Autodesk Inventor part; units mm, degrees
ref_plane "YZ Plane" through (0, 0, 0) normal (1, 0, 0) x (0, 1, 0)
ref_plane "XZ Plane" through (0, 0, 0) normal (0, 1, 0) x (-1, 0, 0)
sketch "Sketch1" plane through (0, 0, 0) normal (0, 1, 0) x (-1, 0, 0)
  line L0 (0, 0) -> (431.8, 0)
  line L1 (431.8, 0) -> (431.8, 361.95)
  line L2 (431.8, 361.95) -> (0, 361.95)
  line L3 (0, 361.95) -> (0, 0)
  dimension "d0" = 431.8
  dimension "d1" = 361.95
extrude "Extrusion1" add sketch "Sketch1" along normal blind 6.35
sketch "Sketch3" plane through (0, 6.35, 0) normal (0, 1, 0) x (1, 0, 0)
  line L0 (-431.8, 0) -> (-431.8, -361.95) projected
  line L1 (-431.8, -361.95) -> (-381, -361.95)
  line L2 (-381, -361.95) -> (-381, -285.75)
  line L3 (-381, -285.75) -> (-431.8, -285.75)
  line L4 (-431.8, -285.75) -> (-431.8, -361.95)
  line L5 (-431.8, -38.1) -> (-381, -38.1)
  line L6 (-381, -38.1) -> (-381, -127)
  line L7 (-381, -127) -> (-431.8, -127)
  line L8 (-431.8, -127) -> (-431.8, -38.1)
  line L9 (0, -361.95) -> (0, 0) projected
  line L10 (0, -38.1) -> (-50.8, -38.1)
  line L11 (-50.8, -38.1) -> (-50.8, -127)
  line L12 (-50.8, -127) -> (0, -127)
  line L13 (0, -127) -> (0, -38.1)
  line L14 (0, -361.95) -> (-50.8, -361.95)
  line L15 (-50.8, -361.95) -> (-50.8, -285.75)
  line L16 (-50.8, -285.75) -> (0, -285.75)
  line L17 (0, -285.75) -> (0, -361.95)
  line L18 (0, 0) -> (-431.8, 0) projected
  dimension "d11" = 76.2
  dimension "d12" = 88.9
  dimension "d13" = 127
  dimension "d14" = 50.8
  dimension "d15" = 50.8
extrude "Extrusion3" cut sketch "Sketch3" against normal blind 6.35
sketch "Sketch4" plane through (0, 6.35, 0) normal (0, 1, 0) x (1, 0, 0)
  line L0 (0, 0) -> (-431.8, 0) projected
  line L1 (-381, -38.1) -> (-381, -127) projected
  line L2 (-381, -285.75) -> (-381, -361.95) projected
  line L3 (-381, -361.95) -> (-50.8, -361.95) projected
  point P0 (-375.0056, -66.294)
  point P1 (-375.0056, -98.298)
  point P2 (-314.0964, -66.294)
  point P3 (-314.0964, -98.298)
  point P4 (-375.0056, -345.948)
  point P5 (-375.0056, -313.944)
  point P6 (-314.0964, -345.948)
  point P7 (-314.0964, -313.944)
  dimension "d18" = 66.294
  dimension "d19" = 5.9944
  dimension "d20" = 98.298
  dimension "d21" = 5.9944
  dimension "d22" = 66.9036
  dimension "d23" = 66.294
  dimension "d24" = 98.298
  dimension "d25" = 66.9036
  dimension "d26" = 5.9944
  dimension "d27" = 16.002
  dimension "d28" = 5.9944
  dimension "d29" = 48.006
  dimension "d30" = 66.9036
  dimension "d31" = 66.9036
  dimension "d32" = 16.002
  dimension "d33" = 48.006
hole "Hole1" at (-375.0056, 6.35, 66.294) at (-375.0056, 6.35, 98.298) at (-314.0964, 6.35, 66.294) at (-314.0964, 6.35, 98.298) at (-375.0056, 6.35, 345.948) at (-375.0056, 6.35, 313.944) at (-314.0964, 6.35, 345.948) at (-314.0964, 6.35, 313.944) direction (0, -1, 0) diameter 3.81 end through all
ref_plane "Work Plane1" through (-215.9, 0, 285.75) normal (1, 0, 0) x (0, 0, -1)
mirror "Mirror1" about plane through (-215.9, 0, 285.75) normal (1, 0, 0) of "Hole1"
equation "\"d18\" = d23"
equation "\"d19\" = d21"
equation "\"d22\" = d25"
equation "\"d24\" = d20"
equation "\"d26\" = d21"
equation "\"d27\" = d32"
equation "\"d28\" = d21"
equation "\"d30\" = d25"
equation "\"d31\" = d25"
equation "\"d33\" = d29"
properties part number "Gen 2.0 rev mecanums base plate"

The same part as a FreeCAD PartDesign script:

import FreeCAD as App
import Part
import Sketcher

V = App.Vector
Q = App.Units.Quantity

doc = App.newDocument("Part")
body = doc.addObject("PartDesign::Body", "Body")

sketch1 = doc.addObject("Sketcher::SketchObject", "Sketch")
body.addObject(sketch1)
sketch1.AttachmentSupport = (doc.XZ_Plane, [""])
sketch1.MapMode = "FlatFace"
sketch1.addGeometry([
    Part.LineSegment(V(0, 361.95, 0), V(0, 0, 0)),
    Part.LineSegment(V(0, 0, 0), V(-431.8, 0, 0)),
    Part.LineSegment(V(-431.8, 0, 0), V(-431.8, 361.95, 0)),
    Part.LineSegment(V(-431.8, 361.95, 0), V(0, 361.95, 0)),
], False)
sketch1.addConstraint([
    Sketcher.Constraint("Coincident", 0, 2, 1, 1),
    Sketcher.Constraint("Coincident", 1, 2, 2, 1),
    Sketcher.Constraint("Coincident", 2, 2, 3, 1),
    Sketcher.Constraint("Coincident", 3, 2, 0, 1),
    Sketcher.Constraint("Vertical", 0),
    Sketcher.Constraint("Horizontal", 1),
    Sketcher.Constraint("Vertical", 2),
    Sketcher.Constraint("Horizontal", 3),
    Sketcher.Constraint("Coincident", 0, 2, -1, 1),
    Sketcher.Constraint("DistanceX", 1, 2, 1, 1, Q("17 in")),
    Sketcher.Constraint("DistanceY", 0, 2, 0, 1, Q("14.25 in")),
])
pad1 = doc.addObject("PartDesign::Pad", "Pad")
body.addObject(pad1)
pad1.Profile = sketch1
pad1.Length = Q("0.25 in")
pad1.Reversed = True

sketch2 = doc.addObject("Sketcher::SketchObject", "Sketch001")
body.addObject(sketch2)
sketch2.AttachmentSupport = (doc.XZ_Plane, [""])
sketch2.MapMode = "FlatFace"
sketch2.AttachmentOffset = App.Placement(V(0, 0, -0.25 * 25.4), App.Rotation())
sketch2.addGeometry([
    Part.LineSegment(V(-381, 285.75, 0), V(-431.8, 285.75, 0)),
    Part.LineSegment(V(-431.8, 285.75, 0), V(-431.8, 361.95, 0)),
    Part.LineSegment(V(-431.8, 361.95, 0), V(-381, 361.95, 0)),
    Part.LineSegment(V(-381, 361.95, 0), V(-381, 285.75, 0)),
    Part.LineSegment(V(-381, 38.1, 0), V(-431.8, 38.1, 0)),
    Part.LineSegment(V(-431.8, 38.1, 0), V(-431.8, 127, 0)),
    Part.LineSegment(V(-431.8, 127, 0), V(-381, 127, 0)),
    Part.LineSegment(V(-381, 127, 0), V(-381, 38.1, 0)),
    Part.LineSegment(V(0, 361.95, 0), V(0, 285.75, 0)),
    Part.LineSegment(V(0, 285.75, 0), V(-50.8, 285.75, 0)),
    Part.LineSegment(V(-50.8, 285.75, 0), V(-50.8, 361.95, 0)),
    Part.LineSegment(V(-50.8, 361.95, 0), V(0, 361.95, 0)),
    Part.LineSegment(V(0, 127, 0), V(0, 38.1, 0)),
    Part.LineSegment(V(0, 38.1, 0), V(-50.8, 38.1, 0)),
    Part.LineSegment(V(-50.8, 38.1, 0), V(-50.8, 127, 0)),
    Part.LineSegment(V(-50.8, 127, 0), V(0, 127, 0)),
], False)
sketch2.addConstraint([
    Sketcher.Constraint("Coincident", 0, 2, 1, 1),
    Sketcher.Constraint("Coincident", 1, 2, 2, 1),
    Sketcher.Constraint("Coincident", 2, 2, 3, 1),
    Sketcher.Constraint("Coincident", 3, 2, 0, 1),
    Sketcher.Constraint("Coincident", 4, 2, 5, 1),
    Sketcher.Constraint("Coincident", 5, 2, 6, 1),
    Sketcher.Constraint("Coincident", 6, 2, 7, 1),
    Sketcher.Constraint("Coincident", 7, 2, 4, 1),
    Sketcher.Constraint("Coincident", 8, 2, 9, 1),
    Sketcher.Constraint("Coincident", 9, 2, 10, 1),
    Sketcher.Constraint("Coincident", 10, 2, 11, 1),
    Sketcher.Constraint("Coincident", 11, 2, 8, 1),
    Sketcher.Constraint("Coincident", 12, 2, 13, 1),
    Sketcher.Constraint("Coincident", 13, 2, 14, 1),
    Sketcher.Constraint("Coincident", 14, 2, 15, 1),
    Sketcher.Constraint("Coincident", 15, 2, 12, 1),
    Sketcher.Constraint("Horizontal", 0),
    Sketcher.Constraint("Vertical", 1),
    Sketcher.Constraint("Horizontal", 2),
    Sketcher.Constraint("Vertical", 3),
    Sketcher.Constraint("Horizontal", 4),
    Sketcher.Constraint("Vertical", 5),
    Sketcher.Constraint("Horizontal", 6),
    Sketcher.Constraint("Vertical", 7),
    Sketcher.Constraint("Vertical", 8),
    Sketcher.Constraint("Horizontal", 9),
    Sketcher.Constraint("Vertical", 10),
    Sketcher.Constraint("Horizontal", 11),
    Sketcher.Constraint("Vertical", 12),
    Sketcher.Constraint("Horizontal", 13),
    Sketcher.Constraint("Vertical", 14),
    Sketcher.Constraint("Horizontal", 15),
    Sketcher.Constraint("PointOnObject", 8, 2, -2),
    Sketcher.Constraint("PointOnObject", 12, 2, -2),
    Sketcher.Constraint("Horizontal", 3, 2, 8, 2),
    Sketcher.Constraint("Horizontal", 2, 2, 10, 2),
    Sketcher.Constraint("Horizontal", 7, 2, 12, 2),
    Sketcher.Constraint("Horizontal", 6, 2, 14, 2),
    Sketcher.Constraint("Vertical", 1, 2, 4, 2),
    Sketcher.Constraint("Vertical", 3, 2, 6, 2),
    Sketcher.Constraint("Vertical", 10, 2, 13, 2),
    Sketcher.Constraint("Equal", 6, 9),
    Sketcher.Constraint("DistanceX", 0, 2, 0, 1, Q("2 in")),
    Sketcher.Constraint("DistanceY", 1, 1, 1, 2, Q("3 in")),
    Sketcher.Constraint("DistanceY", 5, 1, 5, 2, Q("3.5 in")),
    Sketcher.Constraint("DistanceY", -1, 1, 5, 2, Q("5 in")),
    Sketcher.Constraint("DistanceX", 0, 2, -1, 1, Q("17 in")),
    Sketcher.Constraint("DistanceY", -1, 1, 0, 2, Q("11.25 in")),
])
pocket1 = doc.addObject("PartDesign::Pocket", "Pocket")
body.addObject(pocket1)
pocket1.Profile = sketch2
pocket1.Length = Q("0.25 in")
pocket1.Reversed = True

sketch3 = doc.addObject("Sketcher::SketchObject", "Sketch002")
body.addObject(sketch3)
sketch3.AttachmentSupport = (doc.XZ_Plane, [""])
sketch3.MapMode = "FlatFace"
sketch3.AttachmentOffset = App.Placement(V(0, 0, -0.25 * 25.4), App.Rotation())
sketch3.addGeometry([
    Part.Circle(V(-375.0056, 66.294, 0), V(0, 0, 1), 1.905),
    Part.Circle(V(-375.0056, 98.298, 0), V(0, 0, 1), 1.905),
    Part.Circle(V(-314.0964, 66.294, 0), V(0, 0, 1), 1.905),
    Part.Circle(V(-314.0964, 98.298, 0), V(0, 0, 1), 1.905),
    Part.Circle(V(-375.0056, 345.948, 0), V(0, 0, 1), 1.905),
    Part.Circle(V(-375.0056, 313.944, 0), V(0, 0, 1), 1.905),
    Part.Circle(V(-314.0964, 345.948, 0), V(0, 0, 1), 1.905),
    Part.Circle(V(-314.0964, 313.944, 0), V(0, 0, 1), 1.905),
], False)
sketch3.addConstraint([
    Sketcher.Constraint("Equal", 0, 1),
    Sketcher.Constraint("Equal", 1, 2),
    Sketcher.Constraint("Equal", 2, 3),
    Sketcher.Constraint("Equal", 3, 4),
    Sketcher.Constraint("Equal", 4, 5),
    Sketcher.Constraint("Equal", 5, 6),
    Sketcher.Constraint("Equal", 6, 7),
    Sketcher.Constraint("Horizontal", 0, 3, 2, 3),
    Sketcher.Constraint("Horizontal", 1, 3, 3, 3),
    Sketcher.Constraint("Horizontal", 4, 3, 6, 3),
    Sketcher.Constraint("Horizontal", 5, 3, 7, 3),
    Sketcher.Constraint("Vertical", 0, 3, 1, 3),
    Sketcher.Constraint("Vertical", 2, 3, 3, 3),
    Sketcher.Constraint("Vertical", 1, 3, 4, 3),
    Sketcher.Constraint("Vertical", 4, 3, 5, 3),
    Sketcher.Constraint("Vertical", 3, 3, 6, 3),
    Sketcher.Constraint("Vertical", 6, 3, 7, 3),
    Sketcher.Constraint("Diameter", 0, Q("0.15 in")),
    Sketcher.Constraint("DistanceY", -1, 1, 0, 3, Q("2.61 in")),
    Sketcher.Constraint("DistanceY", -1, 1, 1, 3, Q("3.87 in")),
    Sketcher.Constraint("DistanceY", -1, 1, 4, 3, Q("13.62 in")),
    Sketcher.Constraint("DistanceY", -1, 1, 5, 3, Q("12.36 in")),
    Sketcher.Constraint("DistanceX", 0, 3, -1, 1, Q("14.764 in")),
    Sketcher.Constraint("DistanceX", 2, 3, -1, 1, Q("12.366 in")),
])
doc.recompute()
hole = doc.addObject("PartDesign::Hole", "Hole")
body.addObject(hole)
hole.Profile = sketch3
hole.ThreadType = "None"
hole.Diameter = Q("0.15 in")
hole.DepthType = "ThroughAll"
hole.Reversed = True
doc.recompute()

datumplane = doc.addObject("PartDesign::Plane", "DatumPlane")
body.addObject(datumplane)
datumplane.AttachmentSupport = (doc.YZ_Plane, [""])
datumplane.MapMode = "FlatFace"
datumplane.AttachmentOffset = App.Placement(V(0, 0, -8.5 * 25.4), App.Rotation())
mirrored = doc.addObject("PartDesign::Mirrored", "Mirrored")
body.addObject(mirrored)
mirrored.Originals = [hole]
mirrored.MirrorPlane = (datumplane, [""])
body.Tip = mirrored

doc.recompute()
